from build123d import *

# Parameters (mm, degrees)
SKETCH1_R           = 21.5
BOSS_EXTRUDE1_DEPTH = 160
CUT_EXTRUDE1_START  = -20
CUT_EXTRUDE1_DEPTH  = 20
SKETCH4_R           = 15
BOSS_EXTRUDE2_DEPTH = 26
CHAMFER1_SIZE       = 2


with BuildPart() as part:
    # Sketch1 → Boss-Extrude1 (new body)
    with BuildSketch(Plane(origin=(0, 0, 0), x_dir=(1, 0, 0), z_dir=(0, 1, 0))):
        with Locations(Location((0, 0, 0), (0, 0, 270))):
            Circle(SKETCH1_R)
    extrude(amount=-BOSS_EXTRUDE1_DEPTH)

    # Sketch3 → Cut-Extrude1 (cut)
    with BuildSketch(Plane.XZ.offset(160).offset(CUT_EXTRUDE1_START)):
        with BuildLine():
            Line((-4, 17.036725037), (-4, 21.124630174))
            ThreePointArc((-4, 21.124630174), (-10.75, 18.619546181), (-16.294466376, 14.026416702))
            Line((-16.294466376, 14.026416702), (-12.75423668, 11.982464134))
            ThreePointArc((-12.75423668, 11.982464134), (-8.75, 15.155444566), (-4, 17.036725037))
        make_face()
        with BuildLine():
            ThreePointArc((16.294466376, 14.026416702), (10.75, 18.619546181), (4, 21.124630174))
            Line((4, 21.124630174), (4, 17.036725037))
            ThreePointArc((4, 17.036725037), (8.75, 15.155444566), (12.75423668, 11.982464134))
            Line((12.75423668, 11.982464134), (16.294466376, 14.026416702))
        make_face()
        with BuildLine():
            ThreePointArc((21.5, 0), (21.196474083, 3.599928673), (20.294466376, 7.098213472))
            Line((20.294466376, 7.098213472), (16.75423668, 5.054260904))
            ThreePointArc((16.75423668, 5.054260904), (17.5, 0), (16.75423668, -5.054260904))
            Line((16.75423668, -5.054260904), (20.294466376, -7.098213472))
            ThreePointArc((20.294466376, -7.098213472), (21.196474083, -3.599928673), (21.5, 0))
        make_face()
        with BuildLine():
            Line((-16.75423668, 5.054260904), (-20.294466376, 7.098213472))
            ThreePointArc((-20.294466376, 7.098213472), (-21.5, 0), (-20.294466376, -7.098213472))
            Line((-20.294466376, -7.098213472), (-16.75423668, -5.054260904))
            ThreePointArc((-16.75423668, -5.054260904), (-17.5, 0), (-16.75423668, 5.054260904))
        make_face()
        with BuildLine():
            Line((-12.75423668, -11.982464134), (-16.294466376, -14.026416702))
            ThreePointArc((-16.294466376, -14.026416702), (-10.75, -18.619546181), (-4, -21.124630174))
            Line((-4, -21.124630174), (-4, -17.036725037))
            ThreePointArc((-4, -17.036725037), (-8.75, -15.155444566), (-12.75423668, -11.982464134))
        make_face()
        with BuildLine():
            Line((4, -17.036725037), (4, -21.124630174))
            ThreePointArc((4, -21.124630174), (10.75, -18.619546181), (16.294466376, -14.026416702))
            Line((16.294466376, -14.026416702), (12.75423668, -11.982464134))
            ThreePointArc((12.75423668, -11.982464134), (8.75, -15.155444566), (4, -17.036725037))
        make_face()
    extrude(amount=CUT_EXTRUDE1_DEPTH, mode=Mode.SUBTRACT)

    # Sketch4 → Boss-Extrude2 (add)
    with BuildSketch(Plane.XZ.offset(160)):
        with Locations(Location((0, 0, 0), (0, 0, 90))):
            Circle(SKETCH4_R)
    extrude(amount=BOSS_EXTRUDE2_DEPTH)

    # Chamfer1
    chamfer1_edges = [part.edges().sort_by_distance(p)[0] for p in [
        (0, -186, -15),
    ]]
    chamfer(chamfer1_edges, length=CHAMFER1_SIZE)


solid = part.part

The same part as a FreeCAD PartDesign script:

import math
import FreeCAD as App
import Part
import Sketcher
Q = App.Units.Quantity


def edges_at(feature, points):
    """Names of the edges that pass closest to the given points."""
    edges = feature.Shape.Edges
    near = lambda p: min(range(len(edges)), key=lambda i: edges[i].distToShape(Part.Vertex(*p))[0])
    return sorted({f"Edge{near(p) + 1}" for p in points})

doc = App.newDocument("Part")
body = doc.addObject("PartDesign::Body", "Body")

# Sketch on XZ plane
sketch1 = doc.addObject("Sketcher::SketchObject", "Sketch")
body.addObject(sketch1)
sketch1.AttachmentSupport = (doc.XZ_Plane, [""])
sketch1.MapMode = "FlatFace"
sketch1.addGeometry(Part.Circle(App.Vector(0, 0, 0), App.Vector(0, 0, 1), 22), False)
sketch1.addConstraint([
    Sketcher.Constraint("Coincident", 0, 3, -1, 1),
    Sketcher.Constraint("Diameter", 0, 43.0),
])
pad1 = doc.addObject("PartDesign::Pad", "Pad")
body.addObject(pad1)
pad1.Profile = sketch1
pad1.Length = 160

# Sketch on XZ plane
sketch2 = doc.addObject("Sketcher::SketchObject", "Sketch001")
body.addObject(sketch2)
sketch2.AttachmentSupport = (doc.XZ_Plane, [""])
sketch2.MapMode = "FlatFace"
sketch2.AttachmentOffset = App.Placement(App.Vector(0, 0, 140), App.Rotation())
sketch2.addGeometry([
    Part.LineSegment(App.Vector(-4, 17, 0), App.Vector(-4, 21.1, 0)),  # 0
    Part.ArcOfCircle(Part.Circle(App.Vector(0, 0, 0), App.Vector(0, 0, 1), 21.5), math.radians(101), math.radians(139)),  # 1
    Part.LineSegment(App.Vector(-16.3, 14, 0), App.Vector(-12.8, 12, 0)),  # 2
    Part.ArcOfCircle(Part.Circle(App.Vector(0, 0, 0), App.Vector(0, 0, 1), 17.5), math.radians(103), math.radians(137)),  # 3
    Part.ArcOfCircle(Part.Circle(App.Vector(0, 0, 0), App.Vector(0, 0, 1), 21.5), math.radians(41), math.radians(79)),  # 4
    Part.LineSegment(App.Vector(4, 21.1, 0), App.Vector(4, 17, 0)),  # 5
    Part.ArcOfCircle(Part.Circle(App.Vector(0, 0, 0), App.Vector(0, 0, 1), 17.5), math.radians(43), math.radians(77)),  # 6
    Part.LineSegment(App.Vector(12.8, 12, 0), App.Vector(16.3, 14, 0)),  # 7
    Part.ArcOfCircle(Part.Circle(App.Vector(0, 0, 0), App.Vector(0, 0, 1), 21.5), math.radians(0), math.radians(19.28)),  # 8
    Part.LineSegment(App.Vector(20.3, 7.1, 0), App.Vector(16.8, 5.1, 0)),  # 9
    Part.ArcOfCircle(Part.Circle(App.Vector(0, 0, 0), App.Vector(0, 0, 1), 17.5), math.radians(-17), math.radians(17)),  # 10
    Part.LineSegment(App.Vector(16.8, -5.1, 0), App.Vector(20.3, -7.1, 0)),  # 11
    Part.ArcOfCircle(Part.Circle(App.Vector(0, 0, 0), App.Vector(0, 0, 1), 21.5), math.radians(-19.28), math.radians(0)),  # 12
    Part.LineSegment(App.Vector(-16.8, 5.1, 0), App.Vector(-20.3, 7.1, 0)),  # 13
    Part.ArcOfCircle(Part.Circle(App.Vector(0, 0, 0), App.Vector(0, 0, 1), 21.5), math.radians(161), math.radians(199)),  # 14
    Part.LineSegment(App.Vector(-20.3, -7.1, 0), App.Vector(-16.8, -5.1, 0)),  # 15
    Part.ArcOfCircle(Part.Circle(App.Vector(0, 0, 0), App.Vector(0, 0, 1), 17.5), math.radians(163), math.radians(197)),  # 16
    Part.LineSegment(App.Vector(-12.8, -12, 0), App.Vector(-16.3, -14, 0)),  # 17
    Part.ArcOfCircle(Part.Circle(App.Vector(0, 0, 0), App.Vector(0, 0, 1), 21.5), math.radians(-139), math.radians(-101)),  # 18
    Part.LineSegment(App.Vector(-4, -21.1, 0), App.Vector(-4, -17, 0)),  # 19
    Part.ArcOfCircle(Part.Circle(App.Vector(0, 0, 0), App.Vector(0, 0, 1), 17.5), math.radians(-137), math.radians(-103)),  # 20
    Part.LineSegment(App.Vector(4, -17, 0), App.Vector(4, -21.1, 0)),  # 21
    Part.ArcOfCircle(Part.Circle(App.Vector(0, 0, 0), App.Vector(0, 0, 1), 21.5), math.radians(-79), math.radians(-41)),  # 22
    Part.LineSegment(App.Vector(16.3, -14, 0), App.Vector(12.8, -12, 0)),  # 23
    Part.ArcOfCircle(Part.Circle(App.Vector(0, 0, 0), App.Vector(0, 0, 1), 17.5), math.radians(-77), math.radians(-43)),  # 24
], False)
sketch2.addConstraint([
    Sketcher.Constraint("Coincident", 0, 2, 1, 1),
    Sketcher.Constraint("Coincident", 1, 2, 2, 1),
    Sketcher.Constraint("Coincident", 2, 2, 3, 2),
    Sketcher.Constraint("Coincident", 3, 1, 0, 1),
    Sketcher.Constraint("Coincident", 4, 2, 5, 1),
    Sketcher.Constraint("Coincident", 5, 2, 6, 2),
    Sketcher.Constraint("Coincident", 6, 1, 7, 1),
    Sketcher.Constraint("Coincident", 7, 2, 4, 1),
    Sketcher.Constraint("Coincident", 8, 2, 9, 1),
    Sketcher.Constraint("Coincident", 9, 2, 10, 2),
    Sketcher.Constraint("Coincident", 10, 1, 11, 1),
    Sketcher.Constraint("Coincident", 11, 2, 12, 1),
    Sketcher.Constraint("Tangent", 12, 2, 8, 1),
    Sketcher.Constraint("Coincident", 13, 2, 14, 1),
    Sketcher.Constraint("Coincident", 14, 2, 15, 1),
    Sketcher.Constraint("Coincident", 15, 2, 16, 2),
    Sketcher.Constraint("Coincident", 16, 1, 13, 1),
    Sketcher.Constraint("Coincident", 17, 2, 18, 1),
    Sketcher.Constraint("Coincident", 18, 2, 19, 1),
    Sketcher.Constraint("Coincident", 19, 2, 20, 2),
    Sketcher.Constraint("Coincident", 20, 1, 17, 1),
    Sketcher.Constraint("Coincident", 21, 2, 22, 1),
    Sketcher.Constraint("Coincident", 22, 2, 23, 1),
    Sketcher.Constraint("Coincident", 23, 2, 24, 2),
    Sketcher.Constraint("Coincident", 24, 1, 21, 1),
    Sketcher.Constraint("Vertical", 0),
    Sketcher.Constraint("Vertical", 5),
    Sketcher.Constraint("Vertical", 19),
    Sketcher.Constraint("Vertical", 21),
    Sketcher.Constraint("Coincident", 1, 3, -1, 1),
    Sketcher.Constraint("Coincident", 3, 3, -1, 1),
    Sketcher.Constraint("Coincident", 4, 3, -1, 1),
    Sketcher.Constraint("Coincident", 6, 3, -1, 1),
    Sketcher.Constraint("Coincident", 8, 3, -1, 1),
    Sketcher.Constraint("Coincident", 10, 3, -1, 1),
    Sketcher.Constraint("Coincident", 14, 3, -1, 1),
    Sketcher.Constraint("Coincident", 16, 3, -1, 1),
    Sketcher.Constraint("Coincident", 18, 3, -1, 1),
    Sketcher.Constraint("Coincident", 20, 3, -1, 1),
    Sketcher.Constraint("Coincident", 22, 3, -1, 1),
    Sketcher.Constraint("Coincident", 24, 3, -1, 1),
    Sketcher.Constraint("Equal", 1, 4),
    Sketcher.Constraint("Equal", 3, 6),
    Sketcher.Constraint("Equal", 4, 8),
    Sketcher.Constraint("Equal", 6, 10),
    Sketcher.Constraint("Equal", 8, 12),
    Sketcher.Constraint("Equal", 12, 14),
    Sketcher.Constraint("Equal", 10, 16),
    Sketcher.Constraint("Equal", 14, 18),
    Sketcher.Constraint("Equal", 16, 20),
    Sketcher.Constraint("Equal", 18, 22),
    Sketcher.Constraint("Equal", 20, 24),
    Sketcher.Constraint("PointOnObject", 12, 2, -1),
    Sketcher.Constraint("Parallel", 7, 9),
    Sketcher.Constraint("Parallel", 2, 11),
    Sketcher.Constraint("Parallel", 11, 13),
    Sketcher.Constraint("Parallel", 9, 15),
    Sketcher.Constraint("Parallel", 15, 17),
    Sketcher.Constraint("Parallel", 13, 23),
    Sketcher.Constraint("Horizontal", 0, 2, 4, 2),
    Sketcher.Constraint("Horizontal", 2, 2, 6, 1),
    Sketcher.Constraint("Horizontal", 1, 2, 7, 2),
    Sketcher.Constraint("Horizontal", 8, 2, 13, 2),
    Sketcher.Constraint("Horizontal", 11, 2, 14, 2),
    Sketcher.Constraint("Horizontal", 18, 2, 21, 2),
    Sketcher.Constraint("Horizontal", 17, 2, 22, 2),
    Sketcher.Constraint("Vertical", 9, 2, 10, 1),
    Sketcher.Constraint("Vertical", 1, 2, 17, 2),
    Sketcher.Constraint("Vertical", 3, 1, 18, 2),
    Sketcher.Constraint("Equal", 7, 9),
    Sketcher.Constraint("Radius", 1, 21.5),
    Sketcher.Constraint("Radius", 3, 17.5),
    Sketcher.Constraint("Angle", 2, Q("-30 deg")),
    Sketcher.Constraint("DistanceX", 0, 2, -1, 1, 4.0),
    Sketcher.Constraint("DistanceX", 7, 2, 8, 2, 4.0),
])
pocket1 = doc.addObject("PartDesign::Pocket", "Pocket")
body.addObject(pocket1)
pocket1.Profile = sketch2
pocket1.Length = 20
pocket1.Reversed = True

# Sketch on XZ plane
sketch3 = doc.addObject("Sketcher::SketchObject", "Sketch002")
body.addObject(sketch3)
sketch3.AttachmentSupport = (doc.XZ_Plane, [""])
sketch3.MapMode = "FlatFace"
sketch3.AttachmentOffset = App.Placement(App.Vector(0, 0, 160), App.Rotation())
sketch3.addGeometry(Part.Circle(App.Vector(0, 0, 0), App.Vector(0, 0, 1), 15), False)
sketch3.addConstraint([
    Sketcher.Constraint("Coincident", 0, 3, -1, 1),
    Sketcher.Constraint("Diameter", 0, 30.0),
])
pad2 = doc.addObject("PartDesign::Pad", "Pad001")
body.addObject(pad2)
pad2.Profile = sketch3
pad2.Length = 26
doc.recompute()

chamfer = doc.addObject("PartDesign::Chamfer", "Chamfer")
body.addObject(chamfer)
chamfer.Base = (pad2, edges_at(pad2, [(0, -186, -15)]))
chamfer.Size = 2

doc.recompute()
